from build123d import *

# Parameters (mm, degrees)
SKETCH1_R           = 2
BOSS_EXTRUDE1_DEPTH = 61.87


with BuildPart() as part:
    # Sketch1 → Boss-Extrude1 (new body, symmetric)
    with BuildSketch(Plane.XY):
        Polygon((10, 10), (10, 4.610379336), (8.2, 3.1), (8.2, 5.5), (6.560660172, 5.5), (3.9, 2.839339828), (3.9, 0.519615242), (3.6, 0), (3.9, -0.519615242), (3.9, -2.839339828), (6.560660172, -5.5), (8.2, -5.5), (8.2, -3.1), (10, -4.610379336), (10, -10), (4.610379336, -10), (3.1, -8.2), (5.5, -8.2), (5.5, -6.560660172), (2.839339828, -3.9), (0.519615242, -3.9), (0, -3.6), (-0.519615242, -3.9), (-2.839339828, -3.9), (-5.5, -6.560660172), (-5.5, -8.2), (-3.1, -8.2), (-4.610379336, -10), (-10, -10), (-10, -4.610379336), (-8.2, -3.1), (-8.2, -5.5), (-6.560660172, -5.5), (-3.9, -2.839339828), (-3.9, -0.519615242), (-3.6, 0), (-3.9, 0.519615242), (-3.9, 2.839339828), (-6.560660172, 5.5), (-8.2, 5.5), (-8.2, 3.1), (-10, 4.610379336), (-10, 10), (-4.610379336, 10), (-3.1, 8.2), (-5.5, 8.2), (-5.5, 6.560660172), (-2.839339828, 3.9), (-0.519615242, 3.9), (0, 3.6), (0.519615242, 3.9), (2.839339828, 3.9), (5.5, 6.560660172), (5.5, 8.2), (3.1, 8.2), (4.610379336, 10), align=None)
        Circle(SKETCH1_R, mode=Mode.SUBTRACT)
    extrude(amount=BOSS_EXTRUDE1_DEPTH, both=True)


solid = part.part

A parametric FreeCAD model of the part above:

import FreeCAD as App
import Part
import Sketcher

V = App.Vector
Q = App.Units.Quantity

doc = App.newDocument("Part")
body = doc.addObject("PartDesign::Body", "Body")

# Sketch on XY plane
sketch1 = doc.addObject("Sketcher::SketchObject", "Sketch")
body.addObject(sketch1)
sketch1.AttachmentSupport = (doc.XY_Plane, [""])
sketch1.MapMode = "FlatFace"
sketch1.addGeometry(Part.LineSegment(V(10, 4.6, 0), V(10, 10, 0)), False)
sketch1.addGeometry(Part.LineSegment(V(10, 10, 0), V(4.6, 10, 0)), False)
sketch1.addGeometry(Part.LineSegment(V(4.6, 10, 0), V(3.1, 8.2, 0)), False)
sketch1.addGeometry(Part.LineSegment(V(3.1, 8.2, 0), V(5.5, 8.2, 0)), False)
sketch1.addGeometry(Part.LineSegment(V(5.5, 8.2, 0), V(5.5, 6.6, 0)), False)
sketch1.addGeometry(Part.LineSegment(V(5.5, 6.6, 0), V(2.8, 3.9, 0)), False)
sketch1.addGeometry(Part.LineSegment(V(2.8, 3.9, 0), V(0.5, 3.9, 0)), False)
sketch1.addGeometry(Part.LineSegment(V(0.5, 3.9, 0), V(0, 3.6, 0)), False)
sketch1.addGeometry(Part.LineSegment(V(0, 3.6, 0), V(-0.5, 3.9, 0)), False)
sketch1.addGeometry(Part.LineSegment(V(-0.5, 3.9, 0), V(-2.8, 3.9, 0)), False)
sketch1.addGeometry(Part.LineSegment(V(-2.8, 3.9, 0), V(-5.5, 6.6, 0)), False)
sketch1.addGeometry(Part.LineSegment(V(-5.5, 6.6, 0), V(-5.5, 8.2, 0)), False)
sketch1.addGeometry(Part.LineSegment(V(-5.5, 8.2, 0), V(-3.1, 8.2, 0)), False)
sketch1.addGeometry(Part.LineSegment(V(-3.1, 8.2, 0), V(-4.6, 10, 0)), False)
sketch1.addGeometry(Part.LineSegment(V(-4.6, 10, 0), V(-10, 10, 0)), False)
sketch1.addGeometry(Part.LineSegment(V(-10, 10, 0), V(-10, 4.6, 0)), False)
sketch1.addGeometry(Part.LineSegment(V(-10, 4.6, 0), V(-8.2, 3.1, 0)), False)
sketch1.addGeometry(Part.LineSegment(V(-8.2, 3.1, 0), V(-8.2, 5.5, 0)), False)
sketch1.addGeometry(Part.LineSegment(V(-8.2, 5.5, 0), V(-6.6, 5.5, 0)), False)
sketch1.addGeometry(Part.LineSegment(V(-6.6, 5.5, 0), V(-3.9, 2.8, 0)), False)
sketch1.addGeometry(Part.LineSegment(V(-3.9, 2.8, 0), V(-3.9, 0.5, 0)), False)
sketch1.addGeometry(Part.LineSegment(V(-3.9, 0.5, 0), V(-3.6, 0, 0)), False)
sketch1.addGeometry(Part.LineSegment(V(-3.6, 0, 0), V(-3.9, -0.5, 0)), False)
sketch1.addGeometry(Part.LineSegment(V(-3.9, -0.5, 0), V(-3.9, -2.8, 0)), False)
sketch1.addGeometry(Part.LineSegment(V(-3.9, -2.8, 0), V(-6.6, -5.5, 0)), False)
sketch1.addGeometry(Part.LineSegment(V(-6.6, -5.5, 0), V(-8.2, -5.5, 0)), False)
sketch1.addGeometry(Part.LineSegment(V(-8.2, -5.5, 0), V(-8.2, -3.1, 0)), False)
sketch1.addGeometry(Part.LineSegment(V(-8.2, -3.1, 0), V(-10, -4.6, 0)), False)
sketch1.addGeometry(Part.LineSegment(V(-10, -4.6, 0), V(-10, -10, 0)), False)
sketch1.addGeometry(Part.LineSegment(V(-10, -10, 0), V(-4.6, -10, 0)), False)
sketch1.addGeometry(Part.LineSegment(V(-4.6, -10, 0), V(-3.1, -8.2, 0)), False)
sketch1.addGeometry(Part.LineSegment(V(-3.1, -8.2, 0), V(-5.5, -8.2, 0)), False)
sketch1.addGeometry(Part.LineSegment(V(-5.5, -8.2, 0), V(-5.5, -6.6, 0)), False)
sketch1.addGeometry(Part.LineSegment(V(-5.5, -6.6, 0), V(-2.8, -3.9, 0)), False)
sketch1.addGeometry(Part.LineSegment(V(-2.8, -3.9, 0), V(-0.5, -3.9, 0)), False)
sketch1.addGeometry(Part.LineSegment(V(-0.5, -3.9, 0), V(0, -3.6, 0)), False)
sketch1.addGeometry(Part.LineSegment(V(0, -3.6, 0), V(0.5, -3.9, 0)), False)
sketch1.addGeometry(Part.LineSegment(V(0.5, -3.9, 0), V(2.8, -3.9, 0)), False)
sketch1.addGeometry(Part.LineSegment(V(2.8, -3.9, 0), V(5.5, -6.6, 0)), False)
sketch1.addGeometry(Part.LineSegment(V(5.5, -6.6, 0), V(5.5, -8.2, 0)), False)
sketch1.addGeometry(Part.LineSegment(V(5.5, -8.2, 0), V(3.1, -8.2, 0)), False)
sketch1.addGeometry(Part.LineSegment(V(3.1, -8.2, 0), V(4.6, -10, 0)), False)
sketch1.addGeometry(Part.LineSegment(V(4.6, -10, 0), V(10, -10, 0)), False)
sketch1.addGeometry(Part.LineSegment(V(10, -10, 0), V(10, -4.6, 0)), False)
sketch1.addGeometry(Part.LineSegment(V(10, -4.6, 0), V(8.2, -3.1, 0)), False)
sketch1.addGeometry(Part.LineSegment(V(8.2, -3.1, 0), V(8.2, -5.5, 0)), False)
sketch1.addGeometry(Part.LineSegment(V(8.2, -5.5, 0), V(6.6, -5.5, 0)), False)
sketch1.addGeometry(Part.LineSegment(V(6.6, -5.5, 0), V(3.9, -2.8, 0)), False)
sketch1.addGeometry(Part.LineSegment(V(3.9, -2.8, 0), V(3.9, -0.5, 0)), False)
sketch1.addGeometry(Part.LineSegment(V(3.9, -0.5, 0), V(3.6, 0, 0)), False)
sketch1.addGeometry(Part.LineSegment(V(3.6, 0, 0), V(3.9, 0.5, 0)), False)
sketch1.addGeometry(Part.LineSegment(V(3.9, 0.5, 0), V(3.9, 2.8, 0)), False)
sketch1.addGeometry(Part.LineSegment(V(3.9, 2.8, 0), V(6.6, 5.5, 0)), False)
sketch1.addGeometry(Part.LineSegment(V(6.6, 5.5, 0), V(8.2, 5.5, 0)), False)
sketch1.addGeometry(Part.LineSegment(V(8.2, 5.5, 0), V(8.2, 3.1, 0)), False)
sketch1.addGeometry(Part.LineSegment(V(8.2, 3.1, 0), V(10, 4.6, 0)), False)
sketch1.addGeometry(Part.Circle(V(0, 0, 0), V(0, 0, 1), 2), False)
sketch1.addConstraint(Sketcher.Constraint("Coincident", 0, 2, 1, 1))
sketch1.addConstraint(Sketcher.Constraint("Coincident", 1, 2, 2, 1))
sketch1.addConstraint(Sketcher.Constraint("Coincident", 2, 2, 3, 1))
sketch1.addConstraint(Sketcher.Constraint("Coincident", 3, 2, 4, 1))
sketch1.addConstraint(Sketcher.Constraint("Coincident", 4, 2, 5, 1))
sketch1.addConstraint(Sketcher.Constraint("Coincident", 5, 2, 6, 1))
sketch1.addConstraint(Sketcher.Constraint("Coincident", 6, 2, 7, 1))
sketch1.addConstraint(Sketcher.Constraint("Coincident", 7, 2, 8, 1))
sketch1.addConstraint(Sketcher.Constraint("Coincident", 8, 2, 9, 1))
sketch1.addConstraint(Sketcher.Constraint("Coincident", 9, 2, 10, 1))
sketch1.addConstraint(Sketcher.Constraint("Coincident", 10, 2, 11, 1))
sketch1.addConstraint(Sketcher.Constraint("Coincident", 11, 2, 12, 1))
sketch1.addConstraint(Sketcher.Constraint("Coincident", 12, 2, 13, 1))
sketch1.addConstraint(Sketcher.Constraint("Coincident", 13, 2, 14, 1))
sketch1.addConstraint(Sketcher.Constraint("Coincident", 14, 2, 15, 1))
sketch1.addConstraint(Sketcher.Constraint("Coincident", 15, 2, 16, 1))
sketch1.addConstraint(Sketcher.Constraint("Coincident", 16, 2, 17, 1))
sketch1.addConstraint(Sketcher.Constraint("Coincident", 17, 2, 18, 1))
sketch1.addConstraint(Sketcher.Constraint("Coincident", 18, 2, 19, 1))
sketch1.addConstraint(Sketcher.Constraint("Coincident", 19, 2, 20, 1))
sketch1.addConstraint(Sketcher.Constraint("Coincident", 20, 2, 21, 1))
sketch1.addConstraint(Sketcher.Constraint("Coincident", 21, 2, 22, 1))
sketch1.addConstraint(Sketcher.Constraint("Coincident", 22, 2, 23, 1))
sketch1.addConstraint(Sketcher.Constraint("Coincident", 23, 2, 24, 1))
sketch1.addConstraint(Sketcher.Constraint("Coincident", 24, 2, 25, 1))
sketch1.addConstraint(Sketcher.Constraint("Coincident", 25, 2, 26, 1))
sketch1.addConstraint(Sketcher.Constraint("Coincident", 26, 2, 27, 1))
sketch1.addConstraint(Sketcher.Constraint("Coincident", 27, 2, 28, 1))
sketch1.addConstraint(Sketcher.Constraint("Coincident", 28, 2, 29, 1))
sketch1.addConstraint(Sketcher.Constraint("Coincident", 29, 2, 30, 1))
sketch1.addConstraint(Sketcher.Constraint("Coincident", 30, 2, 31, 1))
sketch1.addConstraint(Sketcher.Constraint("Coincident", 31, 2, 32, 1))
sketch1.addConstraint(Sketcher.Constraint("Coincident", 32, 2, 33, 1))
sketch1.addConstraint(Sketcher.Constraint("Coincident", 33, 2, 34, 1))
sketch1.addConstraint(Sketcher.Constraint("Coincident", 34, 2, 35, 1))
sketch1.addConstraint(Sketcher.Constraint("Coincident", 35, 2, 36, 1))
sketch1.addConstraint(Sketcher.Constraint("Coincident", 36, 2, 37, 1))
sketch1.addConstraint(Sketcher.Constraint("Coincident", 37, 2, 38, 1))
sketch1.addConstraint(Sketcher.Constraint("Coincident", 38, 2, 39, 1))
sketch1.addConstraint(Sketcher.Constraint("Coincident", 39, 2, 40, 1))
sketch1.addConstraint(Sketcher.Constraint("Coincident", 40, 2, 41, 1))
sketch1.addConstraint(Sketcher.Constraint("Coincident", 41, 2, 42, 1))
sketch1.addConstraint(Sketcher.Constraint("Coincident", 42, 2, 43, 1))
sketch1.addConstraint(Sketcher.Constraint("Coincident", 43, 2, 44, 1))
sketch1.addConstraint(Sketcher.Constraint("Coincident", 44, 2, 45, 1))
sketch1.addConstraint(Sketcher.Constraint("Coincident", 45, 2, 46, 1))
sketch1.addConstraint(Sketcher.Constraint("Coincident", 46, 2, 47, 1))
sketch1.addConstraint(Sketcher.Constraint("Coincident", 47, 2, 48, 1))
sketch1.addConstraint(Sketcher.Constraint("Coincident", 48, 2, 49, 1))
sketch1.addConstraint(Sketcher.Constraint("Coincident", 49, 2, 50, 1))
sketch1.addConstraint(Sketcher.Constraint("Coincident", 50, 2, 51, 1))
sketch1.addConstraint(Sketcher.Constraint("Coincident", 51, 2, 52, 1))
sketch1.addConstraint(Sketcher.Constraint("Coincident", 52, 2, 53, 1))
sketch1.addConstraint(Sketcher.Constraint("Coincident", 53, 2, 54, 1))
sketch1.addConstraint(Sketcher.Constraint("Coincident", 54, 2, 55, 1))
sketch1.addConstraint(Sketcher.Constraint("Coincident", 55, 2, 0, 1))
sketch1.addConstraint(Sketcher.Constraint("Vertical", 0))
sketch1.addConstraint(Sketcher.Constraint("Horizontal", 1))
sketch1.addConstraint(Sketcher.Constraint("Horizontal", 3))
sketch1.addConstraint(Sketcher.Constraint("Vertical", 4))
sketch1.addConstraint(Sketcher.Constraint("Horizontal", 6))
sketch1.addConstraint(Sketcher.Constraint("Horizontal", 9))
sketch1.addConstraint(Sketcher.Constraint("Vertical", 11))
sketch1.addConstraint(Sketcher.Constraint("Horizontal", 12))
sketch1.addConstraint(Sketcher.Constraint("Horizontal", 14))
sketch1.addConstraint(Sketcher.Constraint("Vertical", 15))
sketch1.addConstraint(Sketcher.Constraint("Vertical", 17))
sketch1.addConstraint(Sketcher.Constraint("Horizontal", 18))
sketch1.addConstraint(Sketcher.Constraint("Vertical", 20))
sketch1.addConstraint(Sketcher.Constraint("Vertical", 23))
sketch1.addConstraint(Sketcher.Constraint("Horizontal", 25))
sketch1.addConstraint(Sketcher.Constraint("Vertical", 26))
sketch1.addConstraint(Sketcher.Constraint("Vertical", 28))
sketch1.addConstraint(Sketcher.Constraint("Horizontal", 29))
sketch1.addConstraint(Sketcher.Constraint("Horizontal", 31))
sketch1.addConstraint(Sketcher.Constraint("Vertical", 32))
sketch1.addConstraint(Sketcher.Constraint("Horizontal", 34))
sketch1.addConstraint(Sketcher.Constraint("Horizontal", 37))
sketch1.addConstraint(Sketcher.Constraint("Vertical", 39))
sketch1.addConstraint(Sketcher.Constraint("Horizontal", 40))
sketch1.addConstraint(Sketcher.Constraint("Horizontal", 42))
sketch1.addConstraint(Sketcher.Constraint("Vertical", 43))
sketch1.addConstraint(Sketcher.Constraint("Vertical", 45))
sketch1.addConstraint(Sketcher.Constraint("Horizontal", 46))
sketch1.addConstraint(Sketcher.Constraint("Vertical", 48))
sketch1.addConstraint(Sketcher.Constraint("Vertical", 51))
sketch1.addConstraint(Sketcher.Constraint("Horizontal", 53))
sketch1.addConstraint(Sketcher.Constraint("Vertical", 54))
sketch1.addConstraint(Sketcher.Constraint("Coincident", 56, 3, -1, 1))
sketch1.addConstraint(Sketcher.Constraint("Symmetric", 0, 2, 28, 2, -1, 1))
sketch1.addConstraint(Sketcher.Constraint("Symmetric", 2, 2, 30, 2, -1, 1))
sketch1.addConstraint(Sketcher.Constraint("Symmetric", 4, 2, 32, 2, -1, 1))
sketch1.addConstraint(Sketcher.Constraint("Symmetric", 5, 2, 33, 2, -1, 1))
sketch1.addConstraint(Sketcher.Constraint("Symmetric", 7, 2, 35, 2, -1, 1))
sketch1.addConstraint(Sketcher.Constraint("Symmetric", 8, 2, 36, 2, -1, 1))
sketch1.addConstraint(Sketcher.Constraint("Symmetric", 10, 2, 38, 2, -1, 1))
sketch1.addConstraint(Sketcher.Constraint("Symmetric", 12, 2, 40, 2, -1, 1))
sketch1.addConstraint(Sketcher.Constraint("Symmetric", 13, 2, 41, 2, -1, 1))
sketch1.addConstraint(Sketcher.Constraint("Symmetric", 15, 2, 43, 2, -1, 1))
sketch1.addConstraint(Sketcher.Constraint("Symmetric", 16, 2, 44, 2, -1, 1))
sketch1.addConstraint(Sketcher.Constraint("Symmetric", 18, 2, 46, 2, -1, 1))
sketch1.addConstraint(Sketcher.Constraint("Symmetric", 19, 2, 47, 2, -1, 1))
sketch1.addConstraint(Sketcher.Constraint("Symmetric", 21, 2, 49, 2, -1, 1))
sketch1.addConstraint(Sketcher.Constraint("Symmetric", 22, 2, 50, 2, -1, 1))
sketch1.addConstraint(Sketcher.Constraint("Symmetric", 24, 2, 52, 2, -1, 1))
sketch1.addConstraint(Sketcher.Constraint("Symmetric", 26, 2, 54, 2, -1, 1))
sketch1.addConstraint(Sketcher.Constraint("Symmetric", 6, 2, 8, 2, -2))
sketch1.addConstraint(Sketcher.Constraint("Symmetric", 4, 2, 10, 2, -2))
sketch1.addConstraint(Sketcher.Constraint("Symmetric", 2, 2, 12, 2, -2))
sketch1.addConstraint(Sketcher.Constraint("Symmetric", 1, 2, 13, 2, -2))
sketch1.addConstraint(Sketcher.Constraint("Symmetric", 27, 2, 43, 2, -2))
sketch1.addConstraint(Sketcher.Constraint("Symmetric", 26, 2, 44, 2, -2))
sketch1.addConstraint(Sketcher.Constraint("Symmetric", 24, 2, 46, 2, -2))
sketch1.addConstraint(Sketcher.Constraint("Symmetric", 23, 2, 47, 2, -2))
sketch1.addConstraint(Sketcher.Constraint("PointOnObject", 7, 2, -2))
sketch1.addConstraint(Sketcher.Constraint("PointOnObject", 21, 2, -1))
sketch1.addConstraint(Sketcher.Constraint("Perpendicular", 5, 10))
sketch1.addConstraint(Sketcher.Constraint("Perpendicular", 2, 16))
sketch1.addConstraint(Sketcher.Constraint("Parallel", 10, 19))
sketch1.addConstraint(Sketcher.Constraint("Perpendicular", 7, 21))
sketch1.addConstraint(Sketcher.Constraint("Perpendicular", 8, 22))
sketch1.addConstraint(Sketcher.Constraint("Perpendicular", 19, 24))
sketch1.addConstraint(Sketcher.Constraint("Perpendicular", 16, 30))
sketch1.addConstraint(Sketcher.Constraint("Perpendicular", 21, 35))
sketch1.addConstraint(Sketcher.Constraint("Perpendicular", 33, 38))
sketch1.addConstraint(Sketcher.Constraint("Perpendicular", 35, 49))
sketch1.addConstraint(Sketcher.Constraint("Perpendicular", 47, 52))
sketch1.addConstraint(Sketcher.Constraint("Perpendicular", 41, 55))
sketch1.addConstraint(Sketcher.Constraint("Equal", 42, 0))
sketch1.addConstraint(Sketcher.Constraint("Equal", 53, 4))
sketch1.addConstraint(Sketcher.Constraint("Equal", 40, 17))
sketch1.addConstraint(Sketcher.Constraint("Equal", 37, 20))
sketch1.addConstraint(Sketcher.Constraint("Equal", 13, 16))
sketch1.addConstraint(Sketcher.Constraint("Equal", 10, 19))
sketch1.addConstraint(Sketcher.Constraint("Equal", 8, 21))
sketch1.addConstraint(Sketcher.Constraint("Diameter", 56, Q("4 mm")))
sketch1.addConstraint(Sketcher.Constraint("Angle", 2, Q("-130 deg")))
sketch1.addConstraint(Sketcher.Constraint("Angle", 7, Q("-150 deg")))
sketch1.addConstraint(Sketcher.Constraint("DistanceX", 3, 1, 3, 2, Q("2.4 mm")))
sketch1.addConstraint(Sketcher.Constraint("DistanceX", -1, 1, 0, 2, Q("10 mm")))
sketch1.addConstraint(Sketcher.Constraint("Distance", 7, Q("0.6 mm")))
sketch1.addConstraint(Sketcher.Constraint("DistanceX", -1, 1, 2, 2, Q("3.1 mm")))
sketch1.addConstraint(Sketcher.Constraint("DistanceY", -1, 1, 2, 2, Q("8.2 mm")))
sketch1.addConstraint(Sketcher.Constraint("DistanceY", -1, 1, 5, 2, Q("3.9 mm")))
sketch1.addConstraint(Sketcher.Constraint("DistanceX", 18, 1, 18, 2, Q("1.63934 mm")))
pad1 = doc.addObject("PartDesign::Pad", "Pad")
body.addObject(pad1)
pad1.Profile = sketch1
pad1.Length = 123.74
pad1.Midplane = True

doc.recompute()
